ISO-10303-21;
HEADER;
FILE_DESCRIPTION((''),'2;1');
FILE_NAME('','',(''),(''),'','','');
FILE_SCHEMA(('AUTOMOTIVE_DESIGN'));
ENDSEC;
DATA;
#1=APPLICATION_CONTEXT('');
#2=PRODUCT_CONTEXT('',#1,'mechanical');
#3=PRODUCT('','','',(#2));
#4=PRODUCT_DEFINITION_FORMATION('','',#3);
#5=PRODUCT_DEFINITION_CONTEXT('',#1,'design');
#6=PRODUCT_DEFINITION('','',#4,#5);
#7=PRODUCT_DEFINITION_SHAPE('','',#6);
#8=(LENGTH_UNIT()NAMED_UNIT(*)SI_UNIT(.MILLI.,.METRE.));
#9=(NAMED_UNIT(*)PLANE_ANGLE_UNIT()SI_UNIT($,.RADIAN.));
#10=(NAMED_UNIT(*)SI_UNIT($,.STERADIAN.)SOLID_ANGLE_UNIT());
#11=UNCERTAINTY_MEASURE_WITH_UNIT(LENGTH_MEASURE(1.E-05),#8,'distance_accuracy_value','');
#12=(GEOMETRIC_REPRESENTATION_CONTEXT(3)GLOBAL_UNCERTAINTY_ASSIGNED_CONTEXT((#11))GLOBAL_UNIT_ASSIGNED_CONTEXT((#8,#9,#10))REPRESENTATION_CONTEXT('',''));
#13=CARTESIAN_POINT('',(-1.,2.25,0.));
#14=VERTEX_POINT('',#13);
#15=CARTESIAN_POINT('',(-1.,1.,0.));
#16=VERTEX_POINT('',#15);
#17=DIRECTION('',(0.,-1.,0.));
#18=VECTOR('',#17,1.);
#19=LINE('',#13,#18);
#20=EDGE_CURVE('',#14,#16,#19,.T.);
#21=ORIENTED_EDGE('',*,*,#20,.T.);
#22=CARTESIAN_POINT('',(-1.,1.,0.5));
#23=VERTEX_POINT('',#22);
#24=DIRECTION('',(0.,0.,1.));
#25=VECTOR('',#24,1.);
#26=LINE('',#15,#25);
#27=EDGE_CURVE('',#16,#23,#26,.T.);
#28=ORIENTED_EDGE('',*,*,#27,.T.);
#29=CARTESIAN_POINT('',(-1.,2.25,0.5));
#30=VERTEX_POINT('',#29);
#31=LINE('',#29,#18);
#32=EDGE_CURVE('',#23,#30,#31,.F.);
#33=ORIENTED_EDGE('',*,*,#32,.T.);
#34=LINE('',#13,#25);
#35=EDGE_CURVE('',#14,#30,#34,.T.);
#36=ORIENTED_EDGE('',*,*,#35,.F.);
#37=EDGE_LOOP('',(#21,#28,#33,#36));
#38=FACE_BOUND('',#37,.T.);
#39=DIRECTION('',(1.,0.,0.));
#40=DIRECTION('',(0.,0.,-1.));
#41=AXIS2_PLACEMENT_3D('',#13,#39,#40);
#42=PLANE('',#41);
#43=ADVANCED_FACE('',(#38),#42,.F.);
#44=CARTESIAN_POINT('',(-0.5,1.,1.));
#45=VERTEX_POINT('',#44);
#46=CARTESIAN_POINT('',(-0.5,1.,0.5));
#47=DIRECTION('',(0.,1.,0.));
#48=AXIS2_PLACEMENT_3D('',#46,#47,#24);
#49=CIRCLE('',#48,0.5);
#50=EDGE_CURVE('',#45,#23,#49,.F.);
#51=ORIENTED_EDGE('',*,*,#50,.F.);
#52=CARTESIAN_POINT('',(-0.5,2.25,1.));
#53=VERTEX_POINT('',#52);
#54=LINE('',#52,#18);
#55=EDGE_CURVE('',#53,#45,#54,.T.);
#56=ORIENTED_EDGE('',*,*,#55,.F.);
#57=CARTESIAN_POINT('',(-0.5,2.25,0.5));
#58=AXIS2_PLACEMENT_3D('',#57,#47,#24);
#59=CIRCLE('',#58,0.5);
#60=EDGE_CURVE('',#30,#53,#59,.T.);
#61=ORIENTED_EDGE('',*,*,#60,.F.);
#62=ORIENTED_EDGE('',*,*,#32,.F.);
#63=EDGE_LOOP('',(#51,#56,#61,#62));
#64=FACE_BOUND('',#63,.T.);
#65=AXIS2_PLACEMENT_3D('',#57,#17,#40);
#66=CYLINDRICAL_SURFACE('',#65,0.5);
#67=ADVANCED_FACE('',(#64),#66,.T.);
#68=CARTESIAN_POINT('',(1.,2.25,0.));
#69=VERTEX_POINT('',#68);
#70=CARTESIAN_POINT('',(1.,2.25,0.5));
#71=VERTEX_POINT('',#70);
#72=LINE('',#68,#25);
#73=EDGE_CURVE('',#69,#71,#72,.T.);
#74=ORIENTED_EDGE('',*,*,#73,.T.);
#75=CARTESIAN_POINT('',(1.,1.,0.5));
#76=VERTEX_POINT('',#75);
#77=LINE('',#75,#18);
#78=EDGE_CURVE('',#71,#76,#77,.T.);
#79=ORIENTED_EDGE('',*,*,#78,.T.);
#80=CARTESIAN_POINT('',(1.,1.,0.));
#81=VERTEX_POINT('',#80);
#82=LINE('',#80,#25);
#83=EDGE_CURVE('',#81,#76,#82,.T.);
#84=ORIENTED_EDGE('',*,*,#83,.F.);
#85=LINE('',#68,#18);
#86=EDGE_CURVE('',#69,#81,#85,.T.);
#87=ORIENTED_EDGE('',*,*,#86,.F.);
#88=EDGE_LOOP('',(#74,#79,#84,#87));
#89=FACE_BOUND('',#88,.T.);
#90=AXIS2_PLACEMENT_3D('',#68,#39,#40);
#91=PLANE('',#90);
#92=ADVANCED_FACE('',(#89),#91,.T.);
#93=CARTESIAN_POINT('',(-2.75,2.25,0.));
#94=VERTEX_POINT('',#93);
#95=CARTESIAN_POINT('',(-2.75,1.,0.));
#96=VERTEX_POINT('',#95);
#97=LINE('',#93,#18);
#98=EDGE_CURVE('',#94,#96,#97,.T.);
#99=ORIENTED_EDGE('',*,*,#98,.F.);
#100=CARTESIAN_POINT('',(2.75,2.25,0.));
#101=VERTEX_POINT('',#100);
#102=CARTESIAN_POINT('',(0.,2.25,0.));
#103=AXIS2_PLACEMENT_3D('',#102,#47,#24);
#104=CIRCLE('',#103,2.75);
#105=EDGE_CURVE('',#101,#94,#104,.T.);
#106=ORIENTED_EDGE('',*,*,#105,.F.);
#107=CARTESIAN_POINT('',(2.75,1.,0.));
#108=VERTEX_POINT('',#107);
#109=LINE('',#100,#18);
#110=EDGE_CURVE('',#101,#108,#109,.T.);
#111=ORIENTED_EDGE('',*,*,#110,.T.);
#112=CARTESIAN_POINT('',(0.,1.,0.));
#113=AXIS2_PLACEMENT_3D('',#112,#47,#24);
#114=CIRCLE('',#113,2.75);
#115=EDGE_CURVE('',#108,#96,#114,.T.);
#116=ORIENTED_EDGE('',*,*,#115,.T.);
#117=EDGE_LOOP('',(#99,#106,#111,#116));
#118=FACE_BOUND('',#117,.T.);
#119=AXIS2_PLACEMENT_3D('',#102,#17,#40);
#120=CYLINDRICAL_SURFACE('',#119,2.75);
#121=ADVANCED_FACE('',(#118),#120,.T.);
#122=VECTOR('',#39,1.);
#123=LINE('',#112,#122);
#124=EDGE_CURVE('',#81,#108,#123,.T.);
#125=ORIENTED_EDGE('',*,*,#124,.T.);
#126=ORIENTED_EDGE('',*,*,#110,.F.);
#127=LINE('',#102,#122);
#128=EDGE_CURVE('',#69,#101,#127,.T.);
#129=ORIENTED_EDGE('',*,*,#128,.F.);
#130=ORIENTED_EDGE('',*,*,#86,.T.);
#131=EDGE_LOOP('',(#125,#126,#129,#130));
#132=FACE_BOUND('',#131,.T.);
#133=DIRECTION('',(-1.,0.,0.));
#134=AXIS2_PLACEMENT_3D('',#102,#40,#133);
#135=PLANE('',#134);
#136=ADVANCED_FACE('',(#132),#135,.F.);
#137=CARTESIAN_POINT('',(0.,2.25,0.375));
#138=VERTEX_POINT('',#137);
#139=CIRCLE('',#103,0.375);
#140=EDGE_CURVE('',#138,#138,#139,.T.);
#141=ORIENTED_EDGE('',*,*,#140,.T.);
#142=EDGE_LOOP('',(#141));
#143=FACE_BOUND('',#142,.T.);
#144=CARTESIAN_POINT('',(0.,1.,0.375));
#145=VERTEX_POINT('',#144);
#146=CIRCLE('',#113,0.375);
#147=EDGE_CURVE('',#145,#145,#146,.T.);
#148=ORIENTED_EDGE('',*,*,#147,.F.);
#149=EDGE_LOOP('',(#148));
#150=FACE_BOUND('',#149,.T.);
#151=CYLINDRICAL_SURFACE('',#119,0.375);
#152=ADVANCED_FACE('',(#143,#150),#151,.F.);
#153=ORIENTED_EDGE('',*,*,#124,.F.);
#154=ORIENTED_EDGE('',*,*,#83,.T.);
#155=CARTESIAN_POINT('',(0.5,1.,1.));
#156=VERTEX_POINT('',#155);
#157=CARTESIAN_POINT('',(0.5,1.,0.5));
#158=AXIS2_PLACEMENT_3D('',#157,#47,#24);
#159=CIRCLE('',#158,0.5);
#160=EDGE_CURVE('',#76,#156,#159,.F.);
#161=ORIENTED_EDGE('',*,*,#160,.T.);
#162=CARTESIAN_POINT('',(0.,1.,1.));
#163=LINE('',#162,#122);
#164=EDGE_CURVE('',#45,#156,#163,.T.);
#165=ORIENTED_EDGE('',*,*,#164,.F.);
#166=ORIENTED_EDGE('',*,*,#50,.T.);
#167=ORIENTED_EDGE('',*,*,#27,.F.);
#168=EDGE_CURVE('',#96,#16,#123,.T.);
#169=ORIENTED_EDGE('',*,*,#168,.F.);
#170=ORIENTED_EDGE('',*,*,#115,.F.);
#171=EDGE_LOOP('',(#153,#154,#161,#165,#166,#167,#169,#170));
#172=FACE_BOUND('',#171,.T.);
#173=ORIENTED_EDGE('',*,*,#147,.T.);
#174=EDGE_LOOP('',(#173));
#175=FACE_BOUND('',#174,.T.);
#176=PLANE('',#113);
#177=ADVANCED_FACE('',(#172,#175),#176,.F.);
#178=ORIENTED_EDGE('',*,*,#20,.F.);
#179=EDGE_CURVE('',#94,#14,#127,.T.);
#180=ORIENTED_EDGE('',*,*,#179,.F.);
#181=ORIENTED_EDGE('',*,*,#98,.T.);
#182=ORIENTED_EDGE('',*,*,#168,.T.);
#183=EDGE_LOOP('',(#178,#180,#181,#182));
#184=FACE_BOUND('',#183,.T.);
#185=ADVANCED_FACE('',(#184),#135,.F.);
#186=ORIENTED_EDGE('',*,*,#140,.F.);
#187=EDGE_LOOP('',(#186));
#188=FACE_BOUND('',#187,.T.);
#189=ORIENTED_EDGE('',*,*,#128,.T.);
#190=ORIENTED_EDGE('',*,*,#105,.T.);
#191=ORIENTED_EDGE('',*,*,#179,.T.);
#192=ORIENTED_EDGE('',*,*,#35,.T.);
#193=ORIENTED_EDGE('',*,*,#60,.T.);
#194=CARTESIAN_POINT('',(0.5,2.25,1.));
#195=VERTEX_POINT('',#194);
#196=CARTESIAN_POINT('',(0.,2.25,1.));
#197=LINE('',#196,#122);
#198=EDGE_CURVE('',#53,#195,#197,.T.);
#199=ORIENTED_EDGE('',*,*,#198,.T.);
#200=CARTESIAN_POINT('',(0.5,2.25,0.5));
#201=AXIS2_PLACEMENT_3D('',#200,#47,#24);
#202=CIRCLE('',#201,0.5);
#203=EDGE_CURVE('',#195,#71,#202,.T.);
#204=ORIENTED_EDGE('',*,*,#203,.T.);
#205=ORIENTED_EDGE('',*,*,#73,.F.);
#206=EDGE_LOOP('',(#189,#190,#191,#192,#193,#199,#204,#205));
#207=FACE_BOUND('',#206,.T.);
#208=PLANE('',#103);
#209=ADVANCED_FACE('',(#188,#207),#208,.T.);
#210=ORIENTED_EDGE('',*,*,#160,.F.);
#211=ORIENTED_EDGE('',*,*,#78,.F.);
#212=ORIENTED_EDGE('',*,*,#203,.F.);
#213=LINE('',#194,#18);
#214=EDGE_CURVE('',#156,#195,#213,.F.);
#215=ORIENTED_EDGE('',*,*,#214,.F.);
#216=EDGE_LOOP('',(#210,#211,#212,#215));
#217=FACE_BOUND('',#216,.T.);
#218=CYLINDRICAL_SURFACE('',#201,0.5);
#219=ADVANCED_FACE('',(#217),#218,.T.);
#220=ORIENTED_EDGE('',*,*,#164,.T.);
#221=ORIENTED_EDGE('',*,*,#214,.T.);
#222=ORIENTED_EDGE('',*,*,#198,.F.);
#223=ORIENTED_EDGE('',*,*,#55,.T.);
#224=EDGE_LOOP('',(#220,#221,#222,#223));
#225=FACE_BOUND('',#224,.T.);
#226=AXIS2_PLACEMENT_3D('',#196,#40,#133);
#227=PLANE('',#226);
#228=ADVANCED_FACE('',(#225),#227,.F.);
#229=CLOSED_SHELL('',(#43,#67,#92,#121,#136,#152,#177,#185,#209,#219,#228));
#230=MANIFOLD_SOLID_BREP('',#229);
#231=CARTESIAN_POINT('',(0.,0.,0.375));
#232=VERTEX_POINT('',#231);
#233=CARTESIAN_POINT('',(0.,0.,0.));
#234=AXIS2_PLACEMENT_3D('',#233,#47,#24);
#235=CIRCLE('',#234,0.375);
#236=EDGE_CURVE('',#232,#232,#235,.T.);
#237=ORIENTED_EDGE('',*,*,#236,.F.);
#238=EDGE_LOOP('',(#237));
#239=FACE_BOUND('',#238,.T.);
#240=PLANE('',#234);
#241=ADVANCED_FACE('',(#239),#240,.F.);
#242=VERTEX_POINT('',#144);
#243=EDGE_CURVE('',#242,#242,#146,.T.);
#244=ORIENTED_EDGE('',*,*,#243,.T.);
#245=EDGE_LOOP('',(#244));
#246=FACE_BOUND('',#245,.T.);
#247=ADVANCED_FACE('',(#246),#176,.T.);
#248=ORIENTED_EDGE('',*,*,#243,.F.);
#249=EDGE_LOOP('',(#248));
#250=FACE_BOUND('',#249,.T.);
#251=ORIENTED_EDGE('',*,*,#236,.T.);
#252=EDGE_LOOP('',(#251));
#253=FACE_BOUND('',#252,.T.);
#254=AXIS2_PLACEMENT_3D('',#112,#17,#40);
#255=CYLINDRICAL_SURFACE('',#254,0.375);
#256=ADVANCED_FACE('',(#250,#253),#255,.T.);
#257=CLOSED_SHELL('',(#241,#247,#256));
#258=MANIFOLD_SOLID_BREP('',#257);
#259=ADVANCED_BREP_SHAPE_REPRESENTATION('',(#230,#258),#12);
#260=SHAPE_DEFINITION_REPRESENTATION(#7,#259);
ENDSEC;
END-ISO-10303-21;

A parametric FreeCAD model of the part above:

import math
import FreeCAD as App
import Part
import Sketcher

V = App.Vector


def edges_at(feature, points):
    """Names of the edges that pass closest to the given points."""
    edges = feature.Shape.Edges
    near = lambda p: min(range(len(edges)), key=lambda i: edges[i].distToShape(Part.Vertex(*p))[0])
    return sorted({f"Edge{near(p) + 1}" for p in points})

doc = App.newDocument("Part")
body = doc.addObject("PartDesign::Body", "Body")

sketch1 = body.newObject("Sketcher::SketchObject", "Sketch")
sketch1.AttachmentSupport = (doc.getObject("XZ_Plane"), [""])
sketch1.MapMode = "FlatFace"
sketch1.addGeometry(Part.Circle(V(0, 0, 0), V(0, 0, 1), 0.375), False)
sketch1.addConstraint([
    Sketcher.Constraint("Coincident", 0, 3, -1, 1),
    Sketcher.Constraint("Diameter", 0, 0.75),
])
pad1 = body.newObject("PartDesign::Pad", "Pad")
pad1.Profile = sketch1
pad1.Length = 1
pad1.Reversed = True
body2 = doc.addObject("PartDesign::Body", "Body001")

sketch2 = body2.newObject("Sketcher::SketchObject", "Sketch001")
sketch2.AttachmentSupport = (doc.getObject("XZ_Plane001"), [""])
sketch2.MapMode = "FlatFace"
sketch2.AttachmentOffset = App.Placement(V(0, 0, -1), App.Rotation())
sketch2.addGeometry([
    Part.ArcOfCircle(Part.Circle(V(0, 0, 0), V(0, 0, 1), 2.75), math.radians(180), math.radians(360)),
    Part.LineSegment(V(-2.75, 0, 0), V(-1, 0, 0)),
    Part.LineSegment(V(-1, 0, 0), V(-1, 1, 0)),
    Part.LineSegment(V(-1, 1, 0), V(1, 1, 0)),
    Part.LineSegment(V(1, 1, 0), V(1, 0, 0)),
    Part.LineSegment(V(1, 0, 0), V(2.75, 0, 0)),
    Part.Circle(V(0, 0, 0), V(0, 0, 1), 0.375),
], False)
sketch2.addConstraint([
    Sketcher.Constraint("Coincident", 0, 1, 1, 1),
    Sketcher.Constraint("Coincident", 1, 2, 2, 1),
    Sketcher.Constraint("Coincident", 2, 2, 3, 1),
    Sketcher.Constraint("Coincident", 3, 2, 4, 1),
    Sketcher.Constraint("Coincident", 4, 2, 5, 1),
    Sketcher.Constraint("Coincident", 5, 2, 0, 2),
    Sketcher.Constraint("Horizontal", 1),
    Sketcher.Constraint("Vertical", 2),
    Sketcher.Constraint("Horizontal", 3),
    Sketcher.Constraint("Vertical", 4),
    Sketcher.Constraint("Horizontal", 5),
    Sketcher.Constraint("Coincident", 0, 3, -1, 1),
    Sketcher.Constraint("Coincident", 6, 3, -1, 1),
    Sketcher.Constraint("Symmetric", 1, 2, 4, 2, -1, 1),
    Sketcher.Constraint("PointOnObject", 0, 1, -1),
    Sketcher.Constraint("Diameter", 6, 0.75),
    Sketcher.Constraint("DistanceX", 3, 1, 3, 2, 2.0),
    Sketcher.Constraint("DistanceY", 2, 1, 2, 2, 1.0),
    Sketcher.Constraint("Radius", 0, 2.75),
])
pad2 = body2.newObject("PartDesign::Pad", "Pad001")
pad2.Profile = sketch2
pad2.Length = 1.25
pad2.Reversed = True
doc.recompute()

fillet = body2.newObject("PartDesign::Fillet", "Fillet")
fillet.Base = (pad2, edges_at(pad2, [(1, 1.625, 1), (-1, 1.625, 1)]))
fillet.Radius = 0.5

doc.recompute()
